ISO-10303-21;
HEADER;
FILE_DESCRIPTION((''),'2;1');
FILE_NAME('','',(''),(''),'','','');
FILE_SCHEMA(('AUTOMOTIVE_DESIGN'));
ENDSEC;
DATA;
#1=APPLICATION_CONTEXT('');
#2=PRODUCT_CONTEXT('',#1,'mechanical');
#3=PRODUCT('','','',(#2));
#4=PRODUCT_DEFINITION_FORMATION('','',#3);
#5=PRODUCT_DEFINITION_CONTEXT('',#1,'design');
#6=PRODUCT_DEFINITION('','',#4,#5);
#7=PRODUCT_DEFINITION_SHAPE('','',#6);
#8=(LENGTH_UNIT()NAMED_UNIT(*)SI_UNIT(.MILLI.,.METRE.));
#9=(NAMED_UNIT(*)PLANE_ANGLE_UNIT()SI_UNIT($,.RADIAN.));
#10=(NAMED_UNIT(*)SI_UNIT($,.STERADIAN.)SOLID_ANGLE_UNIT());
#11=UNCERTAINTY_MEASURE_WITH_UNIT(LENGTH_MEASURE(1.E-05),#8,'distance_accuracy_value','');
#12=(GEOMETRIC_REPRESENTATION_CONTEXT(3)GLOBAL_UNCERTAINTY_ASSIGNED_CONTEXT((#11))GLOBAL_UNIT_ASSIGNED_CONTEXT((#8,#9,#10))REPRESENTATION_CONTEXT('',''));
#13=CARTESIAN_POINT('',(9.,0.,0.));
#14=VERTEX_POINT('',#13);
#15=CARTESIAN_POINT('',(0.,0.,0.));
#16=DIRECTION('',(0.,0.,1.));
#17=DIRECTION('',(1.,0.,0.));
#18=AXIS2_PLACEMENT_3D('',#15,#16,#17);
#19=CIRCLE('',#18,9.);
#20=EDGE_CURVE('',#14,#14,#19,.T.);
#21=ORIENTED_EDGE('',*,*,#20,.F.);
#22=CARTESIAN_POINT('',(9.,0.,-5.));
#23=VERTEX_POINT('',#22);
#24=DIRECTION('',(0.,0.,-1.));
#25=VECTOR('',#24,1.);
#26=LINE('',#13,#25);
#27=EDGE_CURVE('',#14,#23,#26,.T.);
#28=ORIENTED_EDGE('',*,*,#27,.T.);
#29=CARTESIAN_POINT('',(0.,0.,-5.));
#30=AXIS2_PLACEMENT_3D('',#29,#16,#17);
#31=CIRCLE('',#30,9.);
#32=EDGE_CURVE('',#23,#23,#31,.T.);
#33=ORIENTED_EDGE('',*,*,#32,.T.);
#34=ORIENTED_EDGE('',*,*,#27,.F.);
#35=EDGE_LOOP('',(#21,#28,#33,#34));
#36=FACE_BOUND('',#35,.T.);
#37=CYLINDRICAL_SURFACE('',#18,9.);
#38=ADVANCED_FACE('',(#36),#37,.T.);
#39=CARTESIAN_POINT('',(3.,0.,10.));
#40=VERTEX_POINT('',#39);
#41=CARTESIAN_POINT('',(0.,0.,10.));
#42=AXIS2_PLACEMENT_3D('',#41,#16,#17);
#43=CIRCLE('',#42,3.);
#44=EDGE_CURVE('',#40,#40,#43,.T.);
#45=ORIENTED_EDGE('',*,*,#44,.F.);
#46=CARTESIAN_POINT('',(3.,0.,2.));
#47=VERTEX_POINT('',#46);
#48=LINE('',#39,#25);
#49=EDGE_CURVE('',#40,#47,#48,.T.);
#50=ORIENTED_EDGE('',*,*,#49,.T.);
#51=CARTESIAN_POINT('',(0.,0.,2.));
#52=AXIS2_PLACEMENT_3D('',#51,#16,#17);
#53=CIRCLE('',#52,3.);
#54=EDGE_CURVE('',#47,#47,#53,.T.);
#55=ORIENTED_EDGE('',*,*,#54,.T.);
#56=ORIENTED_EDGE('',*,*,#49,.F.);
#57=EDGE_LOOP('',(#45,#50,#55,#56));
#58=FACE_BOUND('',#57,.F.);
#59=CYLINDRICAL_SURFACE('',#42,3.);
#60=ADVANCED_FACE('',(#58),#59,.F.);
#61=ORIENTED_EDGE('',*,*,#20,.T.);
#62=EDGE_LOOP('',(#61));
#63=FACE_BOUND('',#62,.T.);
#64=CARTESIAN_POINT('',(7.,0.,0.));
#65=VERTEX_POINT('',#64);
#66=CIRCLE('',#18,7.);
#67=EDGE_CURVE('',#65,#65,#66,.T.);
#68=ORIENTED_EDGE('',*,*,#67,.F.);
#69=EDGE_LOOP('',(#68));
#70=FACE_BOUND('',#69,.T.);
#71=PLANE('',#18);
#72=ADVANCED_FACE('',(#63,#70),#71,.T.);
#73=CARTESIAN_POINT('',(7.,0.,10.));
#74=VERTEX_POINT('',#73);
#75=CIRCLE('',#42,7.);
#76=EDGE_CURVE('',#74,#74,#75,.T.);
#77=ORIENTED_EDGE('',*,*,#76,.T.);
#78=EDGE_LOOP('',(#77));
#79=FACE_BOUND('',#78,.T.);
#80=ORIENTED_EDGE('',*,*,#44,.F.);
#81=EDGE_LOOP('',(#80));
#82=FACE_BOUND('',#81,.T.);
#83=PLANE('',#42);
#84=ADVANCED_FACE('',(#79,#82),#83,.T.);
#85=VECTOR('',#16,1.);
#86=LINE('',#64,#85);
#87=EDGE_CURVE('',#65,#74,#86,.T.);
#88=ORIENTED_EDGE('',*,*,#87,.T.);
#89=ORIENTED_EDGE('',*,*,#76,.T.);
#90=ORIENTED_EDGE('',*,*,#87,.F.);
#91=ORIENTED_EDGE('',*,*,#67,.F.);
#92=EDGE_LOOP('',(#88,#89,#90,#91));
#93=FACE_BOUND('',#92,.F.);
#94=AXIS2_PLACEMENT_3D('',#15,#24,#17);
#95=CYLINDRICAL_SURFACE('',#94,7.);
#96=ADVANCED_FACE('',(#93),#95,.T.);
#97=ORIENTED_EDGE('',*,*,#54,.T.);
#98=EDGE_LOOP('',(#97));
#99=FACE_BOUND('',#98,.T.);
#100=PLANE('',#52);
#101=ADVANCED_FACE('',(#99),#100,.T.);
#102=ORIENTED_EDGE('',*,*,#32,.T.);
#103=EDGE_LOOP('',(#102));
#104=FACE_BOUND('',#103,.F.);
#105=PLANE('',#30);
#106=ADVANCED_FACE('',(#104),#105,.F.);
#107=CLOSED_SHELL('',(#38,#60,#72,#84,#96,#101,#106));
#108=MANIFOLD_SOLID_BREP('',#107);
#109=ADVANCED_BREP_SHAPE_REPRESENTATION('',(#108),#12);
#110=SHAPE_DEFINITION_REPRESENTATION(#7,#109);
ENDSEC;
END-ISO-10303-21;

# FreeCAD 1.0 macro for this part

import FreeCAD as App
import Part
import Sketcher

doc = App.newDocument("Part")
body = doc.addObject("PartDesign::Body", "Body")

# Sketch on XY plane
sketch1 = body.newObject("Sketcher::SketchObject", "Sketch")
sketch1.AttachmentSupport = (doc.getObject("XY_Plane"), [""])
sketch1.MapMode = "FlatFace"
sketch1.addGeometry(Part.Circle(App.Vector(0, 0, 0), App.Vector(0, 0, 1), 9), False)
sketch1.addConstraint([
    Sketcher.Constraint("Coincident", 0, 3, -1, 1),
    Sketcher.Constraint("Diameter", 0, 18.0),
])
pad1 = body.newObject("PartDesign::Pad", "Pad")
pad1.Profile = sketch1
pad1.Length = 5
pad1.Reversed = True

# Sketch on XY plane
sketch2 = body.newObject("Sketcher::SketchObject", "Sketch001")
sketch2.AttachmentSupport = (doc.getObject("XY_Plane"), [""])
sketch2.MapMode = "FlatFace"
sketch2.addGeometry(Part.Circle(App.Vector(0, 0, 0), App.Vector(0, 0, 1), 7), False)
sketch2.addConstraint([
    Sketcher.Constraint("Coincident", 0, 3, -1, 1),
    Sketcher.Constraint("Diameter", 0, 14.0),
])
pad2 = body.newObject("PartDesign::Pad", "Pad001")
pad2.Profile = sketch2
pad2.Length = 10

# Sketch on XY plane
sketch3 = body.newObject("Sketcher::SketchObject", "Sketch002")
sketch3.AttachmentSupport = (doc.getObject("XY_Plane"), [""])
sketch3.MapMode = "FlatFace"
sketch3.AttachmentOffset = App.Placement(App.Vector(0, 0, 10), App.Rotation())
sketch3.addGeometry(Part.Circle(App.Vector(0, 0, 0), App.Vector(0, 0, 1), 3), False)
sketch3.addConstraint([
    Sketcher.Constraint("Coincident", 0, 3, -1, 1),
    Sketcher.Constraint("Diameter", 0, 6.0),
])
pocket1 = body.newObject("PartDesign::Pocket", "Pocket")
pocket1.Profile = sketch3
pocket1.Length = 8

doc.recompute()
